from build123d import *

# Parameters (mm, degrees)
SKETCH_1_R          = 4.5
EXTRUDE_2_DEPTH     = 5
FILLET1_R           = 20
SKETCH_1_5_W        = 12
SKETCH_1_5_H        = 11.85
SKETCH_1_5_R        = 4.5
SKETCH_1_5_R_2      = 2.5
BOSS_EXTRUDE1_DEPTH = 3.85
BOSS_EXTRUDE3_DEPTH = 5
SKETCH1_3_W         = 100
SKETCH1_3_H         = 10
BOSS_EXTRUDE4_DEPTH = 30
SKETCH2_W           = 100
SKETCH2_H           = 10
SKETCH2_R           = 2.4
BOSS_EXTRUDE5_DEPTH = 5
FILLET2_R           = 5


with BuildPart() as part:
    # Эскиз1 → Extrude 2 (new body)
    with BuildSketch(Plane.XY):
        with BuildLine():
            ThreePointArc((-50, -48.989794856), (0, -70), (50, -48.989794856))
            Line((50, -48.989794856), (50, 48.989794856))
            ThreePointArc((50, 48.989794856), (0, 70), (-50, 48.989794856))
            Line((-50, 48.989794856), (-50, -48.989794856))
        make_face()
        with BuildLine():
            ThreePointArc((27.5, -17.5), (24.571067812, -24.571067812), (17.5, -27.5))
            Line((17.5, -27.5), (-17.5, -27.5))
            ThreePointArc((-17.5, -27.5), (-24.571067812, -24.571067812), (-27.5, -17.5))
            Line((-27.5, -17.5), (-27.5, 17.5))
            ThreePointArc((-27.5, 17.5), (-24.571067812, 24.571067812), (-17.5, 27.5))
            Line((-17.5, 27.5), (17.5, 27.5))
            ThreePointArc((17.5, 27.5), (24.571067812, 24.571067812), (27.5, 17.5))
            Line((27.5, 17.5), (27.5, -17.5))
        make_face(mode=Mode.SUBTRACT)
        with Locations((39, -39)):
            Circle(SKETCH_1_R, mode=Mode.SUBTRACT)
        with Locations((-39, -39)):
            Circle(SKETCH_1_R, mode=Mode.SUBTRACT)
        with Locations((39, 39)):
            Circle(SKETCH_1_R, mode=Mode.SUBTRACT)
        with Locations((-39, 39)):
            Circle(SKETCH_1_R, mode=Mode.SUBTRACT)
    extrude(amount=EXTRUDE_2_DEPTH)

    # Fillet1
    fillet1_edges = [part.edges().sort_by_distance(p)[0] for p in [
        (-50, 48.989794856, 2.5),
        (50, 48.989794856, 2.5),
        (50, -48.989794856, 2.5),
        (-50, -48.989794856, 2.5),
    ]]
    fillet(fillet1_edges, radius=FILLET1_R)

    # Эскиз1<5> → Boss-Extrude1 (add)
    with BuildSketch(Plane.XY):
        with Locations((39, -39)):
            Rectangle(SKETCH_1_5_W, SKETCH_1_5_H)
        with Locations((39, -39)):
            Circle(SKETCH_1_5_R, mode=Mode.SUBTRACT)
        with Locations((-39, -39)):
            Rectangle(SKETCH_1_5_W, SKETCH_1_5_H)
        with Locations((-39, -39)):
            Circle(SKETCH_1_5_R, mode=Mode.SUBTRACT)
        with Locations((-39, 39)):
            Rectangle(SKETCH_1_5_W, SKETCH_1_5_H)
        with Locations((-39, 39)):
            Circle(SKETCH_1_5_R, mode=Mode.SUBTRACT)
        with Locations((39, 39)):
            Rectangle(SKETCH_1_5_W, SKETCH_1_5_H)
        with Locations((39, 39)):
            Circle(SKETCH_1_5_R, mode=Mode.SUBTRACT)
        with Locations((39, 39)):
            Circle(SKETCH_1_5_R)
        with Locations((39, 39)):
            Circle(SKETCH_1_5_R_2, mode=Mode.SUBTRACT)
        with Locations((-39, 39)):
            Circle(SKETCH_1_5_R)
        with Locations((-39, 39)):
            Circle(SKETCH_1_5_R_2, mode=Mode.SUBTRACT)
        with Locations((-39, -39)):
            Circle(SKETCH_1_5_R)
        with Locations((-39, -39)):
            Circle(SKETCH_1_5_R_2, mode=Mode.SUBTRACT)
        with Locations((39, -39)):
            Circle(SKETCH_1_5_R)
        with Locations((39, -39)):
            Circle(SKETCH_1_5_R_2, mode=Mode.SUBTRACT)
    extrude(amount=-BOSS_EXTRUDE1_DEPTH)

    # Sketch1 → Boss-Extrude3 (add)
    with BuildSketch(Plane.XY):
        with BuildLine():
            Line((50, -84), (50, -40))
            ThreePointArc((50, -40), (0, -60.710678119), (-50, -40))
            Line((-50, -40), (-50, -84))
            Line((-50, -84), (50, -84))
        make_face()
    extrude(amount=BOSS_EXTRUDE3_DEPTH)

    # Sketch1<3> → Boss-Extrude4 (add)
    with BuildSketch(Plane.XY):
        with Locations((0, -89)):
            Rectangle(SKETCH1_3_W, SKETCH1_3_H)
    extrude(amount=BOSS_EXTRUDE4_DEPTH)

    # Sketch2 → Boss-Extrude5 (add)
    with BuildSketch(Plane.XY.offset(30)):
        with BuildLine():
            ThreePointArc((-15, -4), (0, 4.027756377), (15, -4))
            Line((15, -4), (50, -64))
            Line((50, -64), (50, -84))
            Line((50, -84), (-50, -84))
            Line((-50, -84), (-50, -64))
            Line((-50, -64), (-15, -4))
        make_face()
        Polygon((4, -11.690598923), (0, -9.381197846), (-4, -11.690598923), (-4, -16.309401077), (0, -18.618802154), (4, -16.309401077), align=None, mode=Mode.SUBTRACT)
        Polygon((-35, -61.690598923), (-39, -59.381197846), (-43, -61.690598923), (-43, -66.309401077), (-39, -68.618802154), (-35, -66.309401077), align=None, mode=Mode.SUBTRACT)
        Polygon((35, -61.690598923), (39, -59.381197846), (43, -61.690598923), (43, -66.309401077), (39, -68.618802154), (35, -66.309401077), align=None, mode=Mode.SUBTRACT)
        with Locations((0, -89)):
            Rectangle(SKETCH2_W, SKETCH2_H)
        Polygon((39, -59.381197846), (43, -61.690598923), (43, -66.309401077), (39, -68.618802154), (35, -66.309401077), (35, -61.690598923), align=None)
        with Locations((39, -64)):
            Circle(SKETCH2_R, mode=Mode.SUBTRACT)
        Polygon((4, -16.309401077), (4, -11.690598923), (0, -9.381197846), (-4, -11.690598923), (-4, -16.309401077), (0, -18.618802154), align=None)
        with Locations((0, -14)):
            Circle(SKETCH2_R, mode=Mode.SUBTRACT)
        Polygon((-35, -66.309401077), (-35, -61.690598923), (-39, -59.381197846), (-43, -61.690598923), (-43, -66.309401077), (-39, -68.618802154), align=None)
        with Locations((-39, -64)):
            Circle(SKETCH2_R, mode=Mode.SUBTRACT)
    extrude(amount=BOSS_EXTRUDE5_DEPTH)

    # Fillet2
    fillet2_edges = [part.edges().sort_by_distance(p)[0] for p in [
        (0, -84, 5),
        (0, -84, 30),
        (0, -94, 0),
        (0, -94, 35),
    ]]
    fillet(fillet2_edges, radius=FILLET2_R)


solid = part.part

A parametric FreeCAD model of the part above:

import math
import FreeCAD as App
import Part
import Sketcher
from FreeCAD import Vector
Q = App.Units.Quantity


def edges_at(feature, points):
    """Names of the edges that pass closest to the given points."""
    edges = feature.Shape.Edges
    near = lambda p: min(range(len(edges)), key=lambda i: edges[i].distToShape(Part.Vertex(*p))[0])
    return sorted({f"Edge{near(p) + 1}" for p in points})


def add_polygon(sketch, points):
    """Adds a closed chain of lines whose ends are joined by coincident constraints."""
    first, n = sketch.GeometryCount, len(points)
    for a, b in zip(points, points[1:] + points[:1]):
        sketch.addGeometry(Part.LineSegment(App.Vector(*a, 0), App.Vector(*b, 0)), False)
    for i in range(n):
        sketch.addConstraint(Sketcher.Constraint("Coincident", first + i, 2, first + (i + 1) % n, 1))

doc = App.newDocument("Part")
body = doc.addObject("PartDesign::Body", "Body")

sketch1 = body.newObject("Sketcher::SketchObject", "Sketch")
sketch1.AttachmentSupport = (doc.getObject("XY_Plane"), [""])
sketch1.MapMode = "FlatFace"
sketch1.addGeometry(Part.ArcOfCircle(Part.Circle(Vector(0, 0, 0), Vector(0, 0, 1), 70), math.radians(-135.584691), math.radians(-44.415309)), False)
sketch1.addGeometry(Part.LineSegment(Vector(50, -48.989795, 0), Vector(50, 48.989795, 0)), False)
sketch1.addGeometry(Part.ArcOfCircle(Part.Circle(Vector(0, 0, 0), Vector(0, 0, 1), 70), math.radians(44.415309), math.radians(135.584691)), False)
sketch1.addGeometry(Part.LineSegment(Vector(-50, 48.989795, 0), Vector(-50, -48.989795, 0)), False)
sketch1.addGeometry(Part.Circle(Vector(-39, -39, 0), Vector(0, 0, 1), 4.5), False)
sketch1.addGeometry(Part.Circle(Vector(39, -39, 0), Vector(0, 0, 1), 4.5), False)
sketch1.addGeometry(Part.Circle(Vector(-39, 39, 0), Vector(0, 0, 1), 4.5), False)
sketch1.addGeometry(Part.LineSegment(Vector(27.5, 17.5, 0), Vector(27.5, -17.5, 0)), False)
sketch1.addGeometry(Part.ArcOfCircle(Part.Circle(Vector(17.5, -17.5, 0), Vector(0, 0, 1), 10), math.radians(-90), math.radians(0)), False)
sketch1.addGeometry(Part.LineSegment(Vector(17.5, -27.5, 0), Vector(-17.5, -27.5, 0)), False)
sketch1.addGeometry(Part.ArcOfCircle(Part.Circle(Vector(-17.5, -17.5, 0), Vector(0, 0, 1), 10), math.radians(180), math.radians(270)), False)
sketch1.addGeometry(Part.LineSegment(Vector(-27.5, -17.5, 0), Vector(-27.5, 17.5, 0)), False)
sketch1.addGeometry(Part.ArcOfCircle(Part.Circle(Vector(-17.5, 17.5, 0), Vector(0, 0, 1), 10), math.radians(90), math.radians(180)), False)
sketch1.addGeometry(Part.LineSegment(Vector(-17.5, 27.5, 0), Vector(17.5, 27.5, 0)), False)
sketch1.addGeometry(Part.ArcOfCircle(Part.Circle(Vector(17.5, 17.5, 0), Vector(0, 0, 1), 10), math.radians(0), math.radians(90)), False)
sketch1.addGeometry(Part.Circle(Vector(39, 39, 0), Vector(0, 0, 1), 4.5), False)
sketch1.addConstraint(Sketcher.Constraint("Coincident", 0, 2, 1, 1))
sketch1.addConstraint(Sketcher.Constraint("Coincident", 1, 2, 2, 1))
sketch1.addConstraint(Sketcher.Constraint("Coincident", 2, 2, 3, 1))
sketch1.addConstraint(Sketcher.Constraint("Coincident", 3, 2, 0, 1))
sketch1.addConstraint(Sketcher.Constraint("Tangent", 7, 2, 8, 2))
sketch1.addConstraint(Sketcher.Constraint("Tangent", 8, 1, 9, 1))
sketch1.addConstraint(Sketcher.Constraint("Tangent", 9, 2, 10, 2))
sketch1.addConstraint(Sketcher.Constraint("Tangent", 10, 1, 11, 1))
sketch1.addConstraint(Sketcher.Constraint("Tangent", 11, 2, 12, 2))
sketch1.addConstraint(Sketcher.Constraint("Tangent", 12, 1, 13, 1))
sketch1.addConstraint(Sketcher.Constraint("Tangent", 13, 2, 14, 2))
sketch1.addConstraint(Sketcher.Constraint("Tangent", 14, 1, 7, 1))
sketch1.addConstraint(Sketcher.Constraint("Vertical", 1))
sketch1.addConstraint(Sketcher.Constraint("Vertical", 3))
sketch1.addConstraint(Sketcher.Constraint("Vertical", 7))
sketch1.addConstraint(Sketcher.Constraint("Horizontal", 9))
sketch1.addConstraint(Sketcher.Constraint("Vertical", 11))
sketch1.addConstraint(Sketcher.Constraint("Horizontal", 13))
sketch1.addConstraint(Sketcher.Constraint("Coincident", 0, 3, -1, 1))
sketch1.addConstraint(Sketcher.Constraint("Coincident", 2, 3, -1, 1))
sketch1.addConstraint(Sketcher.Constraint("Equal", 0, 2))
sketch1.addConstraint(Sketcher.Constraint("Equal", 4, 5))
sketch1.addConstraint(Sketcher.Constraint("Equal", 5, 6))
sketch1.addConstraint(Sketcher.Constraint("Equal", 8, 10))
sketch1.addConstraint(Sketcher.Constraint("Equal", 10, 12))
sketch1.addConstraint(Sketcher.Constraint("Equal", 12, 14))
sketch1.addConstraint(Sketcher.Constraint("Equal", 6, 15))
sketch1.addConstraint(Sketcher.Constraint("Symmetric", 5, 3, 6, 3, -1, 1))
sketch1.addConstraint(Sketcher.Constraint("Symmetric", 8, 3, 12, 3, -1, 1))
sketch1.addConstraint(Sketcher.Constraint("Symmetric", 4, 3, 15, 3, -1, 1))
sketch1.addConstraint(Sketcher.Constraint("Symmetric", 4, 3, 5, 3, -2))
sketch1.addConstraint(Sketcher.Constraint("Horizontal", 1, 2, 2, 2))
sketch1.addConstraint(Sketcher.Constraint("Equal", 13, 7))
sketch1.addConstraint(Sketcher.Constraint("Diameter", 4, Q("9 mm")))
sketch1.addConstraint(Sketcher.Constraint("Radius", 0, Q("70 mm")))
sketch1.addConstraint(Sketcher.Constraint("Radius", 8, Q("10 mm")))
sketch1.addConstraint(Sketcher.Constraint("DistanceX", 9, 2, 9, 1, Q("35 mm")))
sketch1.addConstraint(Sketcher.Constraint("DistanceX", 4, 3, -1, 1, Q("39 mm")))
sketch1.addConstraint(Sketcher.Constraint("DistanceY", 4, 3, -1, 1, Q("39 mm")))
sketch1.addConstraint(Sketcher.Constraint("DistanceX", -1, 1, 0, 2, Q("50 mm")))
pad1 = body.newObject("PartDesign::Pad", "Pad")
pad1.Profile = sketch1
pad1.Length = 5
doc.recompute()

fillet = body.newObject("PartDesign::Fillet", "Fillet")
fillet.Base = (pad1, edges_at(pad1, [
    (-50, 48.99, 2.5),
    (50, 48.99, 2.5),
    (50, -48.99, 2.5),
    (-50, -48.99, 2.5),
]))
fillet.Radius = 20

sketch2 = body.newObject("Sketcher::SketchObject", "Sketch001")
sketch2.AttachmentSupport = (doc.getObject("XY_Plane"), [""])
sketch2.MapMode = "FlatFace"
add_polygon(sketch2, [(33, -33.075), (33, -44.925), (45, -44.925), (45, -33.075)])
sketch2.addGeometry(Part.Circle(Vector(39, -39, 0), Vector(0, 0, 1), 2.5), False)
add_polygon(sketch2, [(-45, -33.075), (-45, -44.925), (-33, -44.925), (-33, -33.075)])
sketch2.addGeometry(Part.Circle(Vector(-39, -39, 0), Vector(0, 0, 1), 2.5), False)
add_polygon(sketch2, [(-45, 44.925), (-45, 33.075), (-33, 33.075), (-33, 44.925)])
sketch2.addGeometry(Part.Circle(Vector(-39, 39, 0), Vector(0, 0, 1), 2.5), False)
add_polygon(sketch2, [(33, 44.925), (33, 33.075), (45, 33.075), (45, 44.925)])
sketch2.addGeometry(Part.Circle(Vector(39, 39, 0), Vector(0, 0, 1), 2.5), False)
sketch2.addConstraint(Sketcher.Constraint("Vertical", 0))
sketch2.addConstraint(Sketcher.Constraint("Horizontal", 1))
sketch2.addConstraint(Sketcher.Constraint("Vertical", 2))
sketch2.addConstraint(Sketcher.Constraint("Horizontal", 3))
sketch2.addConstraint(Sketcher.Constraint("Vertical", 5))
sketch2.addConstraint(Sketcher.Constraint("Horizontal", 6))
sketch2.addConstraint(Sketcher.Constraint("Vertical", 7))
sketch2.addConstraint(Sketcher.Constraint("Horizontal", 8))
sketch2.addConstraint(Sketcher.Constraint("Vertical", 10))
sketch2.addConstraint(Sketcher.Constraint("Horizontal", 11))
sketch2.addConstraint(Sketcher.Constraint("Vertical", 12))
sketch2.addConstraint(Sketcher.Constraint("Horizontal", 13))
sketch2.addConstraint(Sketcher.Constraint("Vertical", 15))
sketch2.addConstraint(Sketcher.Constraint("Horizontal", 16))
sketch2.addConstraint(Sketcher.Constraint("Vertical", 17))
sketch2.addConstraint(Sketcher.Constraint("Horizontal", 18))
sketch2.addConstraint(Sketcher.Constraint("Equal", 4, 9))
sketch2.addConstraint(Sketcher.Constraint("Equal", 9, 14))
sketch2.addConstraint(Sketcher.Constraint("Equal", 14, 19))
sketch2.addConstraint(Sketcher.Constraint("Symmetric", 4, 3, 14, 3, -1, 1))
sketch2.addConstraint(Sketcher.Constraint("Symmetric", 9, 3, 19, 3, -1, 1))
sketch2.addConstraint(Sketcher.Constraint("Symmetric", 2, 2, 10, 2, -1, 1))
sketch2.addConstraint(Sketcher.Constraint("Symmetric", 0, 2, 12, 2, -1, 1))
sketch2.addConstraint(Sketcher.Constraint("Symmetric", 7, 2, 15, 2, -1, 1))
sketch2.addConstraint(Sketcher.Constraint("Symmetric", 5, 2, 17, 2, -1, 1))
sketch2.addConstraint(Sketcher.Constraint("Symmetric", 4, 3, 9, 3, -2))
sketch2.addConstraint(Sketcher.Constraint("Symmetric", 1, 2, 5, 2, -2))
sketch2.addConstraint(Sketcher.Constraint("Symmetric", 3, 2, 7, 2, -2))
sketch2.addConstraint(Sketcher.Constraint("Diameter", 4, Q("5 mm")))
sketch2.addConstraint(Sketcher.Constraint("DistanceX", 1, 1, 1, 2, Q("12 mm")))
sketch2.addConstraint(Sketcher.Constraint("DistanceX", -1, 1, 4, 3, Q("39 mm")))
sketch2.addConstraint(Sketcher.Constraint("DistanceY", 4, 3, -1, 1, Q("39 mm")))
sketch2.addConstraint(Sketcher.Constraint("DistanceX", -1, 1, 0, 2, Q("33 mm")))
sketch2.addConstraint(Sketcher.Constraint("DistanceY", 5, 2, 10, 2, Q("78 mm")))
sketch2.addConstraint(Sketcher.Constraint("DistanceY", 0, 2, 0, 1, Q("11.85 mm")))
pad2 = body.newObject("PartDesign::Pad", "Pad001")
pad2.Profile = sketch2
pad2.Length = 3.85
pad2.Reversed = True

sketch3 = body.newObject("Sketcher::SketchObject", "Sketch002")
sketch3.AttachmentSupport = (doc.getObject("XY_Plane"), [""])
sketch3.MapMode = "FlatFace"
sketch3.addGeometry(Part.LineSegment(Vector(50, -84, 0), Vector(50, -40, 0)), False)
sketch3.addGeometry(Part.ArcOfCircle(Part.Circle(Vector(0, 10, 0), Vector(0, 0, 1), 70.710678), math.radians(-135), math.radians(-45)), False)
sketch3.addGeometry(Part.LineSegment(Vector(-50, -40, 0), Vector(-50, -84, 0)), False)
sketch3.addGeometry(Part.LineSegment(Vector(-50, -84, 0), Vector(50, -84, 0)), False)
sketch3.addConstraint(Sketcher.Constraint("Coincident", 0, 2, 1, 2))
sketch3.addConstraint(Sketcher.Constraint("Coincident", 1, 1, 2, 1))
sketch3.addConstraint(Sketcher.Constraint("Coincident", 2, 2, 3, 1))
sketch3.addConstraint(Sketcher.Constraint("Coincident", 3, 2, 0, 1))
sketch3.addConstraint(Sketcher.Constraint("Vertical", 0))
sketch3.addConstraint(Sketcher.Constraint("Vertical", 2))
sketch3.addConstraint(Sketcher.Constraint("Horizontal", 3))
sketch3.addConstraint(Sketcher.Constraint("Symmetric", 0, 2, 1, 1, -2))
sketch3.addConstraint(Sketcher.Constraint("DistanceX", 3, 1, 3, 2, Q("100 mm")))
sketch3.addConstraint(Sketcher.Constraint("DistanceY", 0, 1, 0, 2, Q("44 mm")))
sketch3.addConstraint(Sketcher.Constraint("DistanceY", -1, 1, 1, 3, Q("10 mm")))
sketch3.addConstraint(Sketcher.Constraint("DistanceY", 0, 2, -1, 1, Q("40 mm")))
pad3 = body.newObject("PartDesign::Pad", "Pad002")
pad3.Profile = sketch3
pad3.Length = 5

sketch4 = body.newObject("Sketcher::SketchObject", "Sketch003")
sketch4.AttachmentSupport = (doc.getObject("XY_Plane"), [""])
sketch4.MapMode = "FlatFace"
add_polygon(sketch4, [(-50, -84), (-50, -94), (50, -94), (50, -84)])
sketch4.addConstraint(Sketcher.Constraint("Vertical", 0))
sketch4.addConstraint(Sketcher.Constraint("Horizontal", 1))
sketch4.addConstraint(Sketcher.Constraint("Vertical", 2))
sketch4.addConstraint(Sketcher.Constraint("Horizontal", 3))
sketch4.addConstraint(Sketcher.Constraint("DistanceX", 1, 1, 1, 2, Q("100 mm")))
sketch4.addConstraint(Sketcher.Constraint("DistanceY", 0, 2, 0, 1, Q("10 mm")))
sketch4.addConstraint(Sketcher.Constraint("DistanceX", 0, 2, -1, 1, Q("50 mm")))
sketch4.addConstraint(Sketcher.Constraint("DistanceY", 0, 2, -1, 1, Q("94 mm")))
pad4 = body.newObject("PartDesign::Pad", "Pad003")
pad4.Profile = sketch4
pad4.Length = 30

sketch5 = body.newObject("Sketcher::SketchObject", "Sketch004")
sketch5.AttachmentSupport = (doc.getObject("XY_Plane"), [""])
sketch5.MapMode = "FlatFace"
sketch5.AttachmentOffset = App.Placement(Vector(0, 0, 30), App.Rotation())
sketch5.addGeometry(Part.ArcOfCircle(Part.Circle(Vector(0, -14, 0), Vector(0, 0, 1), 18.027756), math.radians(33.690068), math.radians(146.309932)), False)
sketch5.addGeometry(Part.LineSegment(Vector(-15, -4, 0), Vector(-50, -64, 0)), False)
sketch5.addGeometry(Part.LineSegment(Vector(-50, -64, 0), Vector(-50, -94, 0)), False)
sketch5.addGeometry(Part.LineSegment(Vector(-50, -94, 0), Vector(50, -94, 0)), False)
sketch5.addGeometry(Part.LineSegment(Vector(50, -94, 0), Vector(50, -64, 0)), False)
sketch5.addGeometry(Part.LineSegment(Vector(50, -64, 0), Vector(15, -4, 0)), False)
sketch5.addGeometry(Part.Circle(Vector(39, -64, 0), Vector(0, 0, 1), 2.4), False)
sketch5.addGeometry(Part.Circle(Vector(-39, -64, 0), Vector(0, 0, 1), 2.4), False)
sketch5.addGeometry(Part.Circle(Vector(0, -14, 0), Vector(0, 0, 1), 2.4), False)
sketch5.addConstraint(Sketcher.Constraint("Coincident", 0, 2, 1, 1))
sketch5.addConstraint(Sketcher.Constraint("Coincident", 1, 2, 2, 1))
sketch5.addConstraint(Sketcher.Constraint("Coincident", 2, 2, 3, 1))
sketch5.addConstraint(Sketcher.Constraint("Coincident", 3, 2, 4, 1))
sketch5.addConstraint(Sketcher.Constraint("Coincident", 4, 2, 5, 1))
sketch5.addConstraint(Sketcher.Constraint("Coincident", 5, 2, 0, 1))
sketch5.addConstraint(Sketcher.Constraint("Vertical", 2))
sketch5.addConstraint(Sketcher.Constraint("Horizontal", 3))
sketch5.addConstraint(Sketcher.Constraint("Vertical", 4))
sketch5.addConstraint(Sketcher.Constraint("Coincident", 8, 3, 0, 3))
sketch5.addConstraint(Sketcher.Constraint("Equal", 6, 7))
sketch5.addConstraint(Sketcher.Constraint("Equal", 7, 8))
sketch5.addConstraint(Sketcher.Constraint("Symmetric", 6, 3, 7, 3, -2))
sketch5.addConstraint(Sketcher.Constraint("Symmetric", 1, 2, 4, 2, -2))
sketch5.addConstraint(Sketcher.Constraint("Symmetric", 0, 2, 5, 2, -2))
sketch5.addConstraint(Sketcher.Constraint("Horizontal", 7, 3, 1, 2))
sketch5.addConstraint(Sketcher.Constraint("Diameter", 6, Q("4.8 mm")))
sketch5.addConstraint(Sketcher.Constraint("DistanceX", 3, 1, 3, 2, Q("100 mm")))
sketch5.addConstraint(Sketcher.Constraint("DistanceY", 2, 2, 2, 1, Q("30 mm")))
sketch5.addConstraint(Sketcher.Constraint("DistanceY", 0, 3, -1, 1, Q("14 mm")))
sketch5.addConstraint(Sketcher.Constraint("DistanceX", -1, 1, 6, 3, Q("39 mm")))
sketch5.addConstraint(Sketcher.Constraint("DistanceY", 6, 3, -1, 1, Q("64 mm")))
sketch5.addConstraint(Sketcher.Constraint("DistanceX", 0, 2, -1, 1, Q("15 mm")))
sketch5.addConstraint(Sketcher.Constraint("DistanceY", 0, 2, -1, 1, Q("4 mm")))
pad5 = body.newObject("PartDesign::Pad", "Pad004")
pad5.Profile = sketch5
pad5.Length = 5
doc.recompute()

fillet2 = body.newObject("PartDesign::Fillet", "Fillet001")
fillet2.Base = (pad5, edges_at(pad5, [
    (0, -84, 5),
    (0, -84, 30),
    (0, -94, 0),
    (0, -94, 35),
]))
fillet2.Radius = 5

doc.recompute()
